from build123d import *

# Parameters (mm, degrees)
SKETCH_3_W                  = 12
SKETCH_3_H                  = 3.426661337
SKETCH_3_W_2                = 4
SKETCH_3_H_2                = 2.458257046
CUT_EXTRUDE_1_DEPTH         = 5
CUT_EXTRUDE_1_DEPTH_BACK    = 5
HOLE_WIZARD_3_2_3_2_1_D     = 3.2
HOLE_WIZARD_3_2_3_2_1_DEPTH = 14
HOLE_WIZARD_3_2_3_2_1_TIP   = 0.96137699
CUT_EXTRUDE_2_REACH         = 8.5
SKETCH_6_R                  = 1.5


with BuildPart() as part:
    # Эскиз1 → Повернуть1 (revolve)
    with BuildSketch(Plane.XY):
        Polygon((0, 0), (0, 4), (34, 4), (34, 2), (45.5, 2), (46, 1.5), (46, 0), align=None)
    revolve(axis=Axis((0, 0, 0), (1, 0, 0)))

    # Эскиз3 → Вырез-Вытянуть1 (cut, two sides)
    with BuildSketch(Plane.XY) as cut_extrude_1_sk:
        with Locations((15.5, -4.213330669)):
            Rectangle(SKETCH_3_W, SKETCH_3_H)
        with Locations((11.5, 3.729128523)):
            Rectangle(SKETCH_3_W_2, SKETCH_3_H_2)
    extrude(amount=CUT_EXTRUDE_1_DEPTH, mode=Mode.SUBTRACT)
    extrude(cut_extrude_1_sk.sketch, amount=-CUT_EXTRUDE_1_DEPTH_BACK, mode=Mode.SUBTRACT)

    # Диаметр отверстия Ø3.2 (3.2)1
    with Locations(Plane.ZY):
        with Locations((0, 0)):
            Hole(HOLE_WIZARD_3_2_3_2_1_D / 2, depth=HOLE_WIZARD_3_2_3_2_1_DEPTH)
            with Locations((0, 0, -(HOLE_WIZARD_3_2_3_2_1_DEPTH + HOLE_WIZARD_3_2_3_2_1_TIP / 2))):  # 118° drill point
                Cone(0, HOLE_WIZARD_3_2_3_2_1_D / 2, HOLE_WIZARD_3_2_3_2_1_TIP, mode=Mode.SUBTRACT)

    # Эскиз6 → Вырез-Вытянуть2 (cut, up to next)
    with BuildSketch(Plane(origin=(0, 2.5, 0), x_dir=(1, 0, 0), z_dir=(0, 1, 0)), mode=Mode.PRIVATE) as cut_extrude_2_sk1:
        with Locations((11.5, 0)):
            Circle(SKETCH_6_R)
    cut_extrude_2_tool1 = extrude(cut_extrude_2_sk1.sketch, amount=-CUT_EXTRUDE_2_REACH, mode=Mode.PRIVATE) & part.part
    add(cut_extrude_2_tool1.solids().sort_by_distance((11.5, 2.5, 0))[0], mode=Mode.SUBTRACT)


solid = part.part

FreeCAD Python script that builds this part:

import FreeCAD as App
import Part
import Sketcher

V = App.Vector
Q = App.Units.Quantity


def add_polygon(sketch, points):
    """Adds a closed chain of lines whose ends are joined by coincident constraints."""
    first, n = sketch.GeometryCount, len(points)
    for a, b in zip(points, points[1:] + points[:1]):
        sketch.addGeometry(Part.LineSegment(App.Vector(*a, 0), App.Vector(*b, 0)), False)
    for i in range(n):
        sketch.addConstraint(Sketcher.Constraint("Coincident", first + i, 2, first + (i + 1) % n, 1))

doc = App.newDocument("Part")
params = doc.addObject("Spreadsheet::Sheet", "Params")
for row, (alias, value) in enumerate([
    ("sketch1_width", "46 mm"),
    ("sketch1_width2", "34 mm"),
    ("sketch1_height", "4 mm"),
    ("sketch1_height2", "2 mm"),
    ("sketch1_width3", "11.5 mm"),
    ("revolution_angle", "360 deg"),
    ("sketch2_width", "12 mm"),
    ("sketch2_width2", "4 mm"),
    ("sketch3_diameter", "3.2 mm"),
    ("hole_diameter", "3.2 mm"),
    ("hole_depth", "14 mm"),
    ("sketch4_diameter", "3 mm"),
], start=1):
    params.set(f"A{row}", alias)
    params.set(f"B{row}", "=" + value)
    params.setAlias(f"B{row}", alias)

body = doc.addObject("PartDesign::Body", "Body")

# Sketch on XY plane
sketch1 = doc.addObject("Sketcher::SketchObject", "Sketch")
body.addObject(sketch1)
sketch1.AttachmentSupport = (doc.XY_Plane, [""])
sketch1.MapMode = "FlatFace"
add_polygon(sketch1, [(0, 4), (0, 0), (46, 0), (46, 1.5), (45.5, 2), (34, 2), (34, 4)])  # lines 0-6
sketch1.addConstraint(Sketcher.Constraint("Vertical", 0))
sketch1.addConstraint(Sketcher.Constraint("Horizontal", 1))
sketch1.addConstraint(Sketcher.Constraint("Vertical", 2))
sketch1.addConstraint(Sketcher.Constraint("Horizontal", 4))
sketch1.addConstraint(Sketcher.Constraint("Vertical", 5))
sketch1.addConstraint(Sketcher.Constraint("Horizontal", 6))
sketch1.addConstraint(Sketcher.Constraint("Coincident", 0, 2, -1, 1))
sketch1.addConstraint(Sketcher.Constraint("DistanceX", 1, 1, 1, 2, 46.0))
sketch1.addConstraint(Sketcher.Constraint("DistanceX", 6, 2, 6, 1, 34.0))
sketch1.addConstraint(Sketcher.Constraint("DistanceY", 0, 2, 0, 1, 4.0))
sketch1.addConstraint(Sketcher.Constraint("DistanceY", 5, 1, 5, 2, 2.0))
sketch1.addConstraint(Sketcher.Constraint("Angle", 3, Q("135 deg")))
sketch1.addConstraint(Sketcher.Constraint("DistanceX", 4, 2, 4, 1, 11.5))
sketch1.setExpression("Constraints[14]", "Params.sketch1_width")
sketch1.setExpression("Constraints[15]", "Params.sketch1_width2")
sketch1.setExpression("Constraints[16]", "Params.sketch1_height")
sketch1.setExpression("Constraints[17]", "Params.sketch1_height2")
sketch1.setExpression("Constraints[19]", "Params.sketch1_width3")
revolution = doc.addObject("PartDesign::Revolution", "Revolution")
body.addObject(revolution)
revolution.Profile = sketch1
revolution.ReferenceAxis = (sketch1, ["H_Axis"])
revolution.setExpression("Angle", "Params.revolution_angle")

# Sketch on XY plane
sketch2 = doc.addObject("Sketcher::SketchObject", "Sketch001")
body.addObject(sketch2)
sketch2.AttachmentSupport = (doc.XY_Plane, [""])
sketch2.MapMode = "FlatFace"
add_polygon(sketch2, [(9.5, -2.5), (9.5, -5.926661), (21.5, -5.926661), (21.5, -2.5)])  # lines 0-3
add_polygon(sketch2, [(9.5, 4.958257), (9.5, 2.5), (13.5, 2.5), (13.5, 4.958257)])  # lines 4-7
sketch2.addConstraint(Sketcher.Constraint("Vertical", 0))
sketch2.addConstraint(Sketcher.Constraint("Horizontal", 1))
sketch2.addConstraint(Sketcher.Constraint("Vertical", 2))
sketch2.addConstraint(Sketcher.Constraint("Horizontal", 3))
sketch2.addConstraint(Sketcher.Constraint("Vertical", 4))
sketch2.addConstraint(Sketcher.Constraint("Horizontal", 5))
sketch2.addConstraint(Sketcher.Constraint("Vertical", 6))
sketch2.addConstraint(Sketcher.Constraint("Horizontal", 7))
sketch2.addConstraint(Sketcher.Constraint("Symmetric", 3, 2, 4, 2, -1))
sketch2.addConstraint(Sketcher.Constraint("DistanceX", 1, 1, 1, 2, 12.0))
sketch2.addConstraint(Sketcher.Constraint("DistanceX", 5, 1, 5, 2, 4.0))
sketch2.addConstraint(Sketcher.Constraint("DistanceY", 3, 2, 4, 2, 5.0))
sketch2.addConstraint(Sketcher.Constraint("DistanceX", -1, 1, 0, 2, 9.5))
sketch2.addConstraint(Sketcher.Constraint("DistanceY", 0, 2, 0, 1, 3.426661))
sketch2.addConstraint(Sketcher.Constraint("DistanceY", 4, 2, 4, 1, 2.458257))
sketch2.setExpression("Constraints[17]", "Params.sketch2_width")
sketch2.setExpression("Constraints[18]", "Params.sketch2_width2")
pocket1 = doc.addObject("PartDesign::Pocket", "Pocket")
body.addObject(pocket1)
pocket1.Profile = sketch2
pocket1.Type = "ThroughAll"
pocket1.Midplane = True

# Sketch on YZ plane
sketch3 = doc.addObject("Sketcher::SketchObject", "Sketch002")
body.addObject(sketch3)
sketch3.AttachmentSupport = (doc.YZ_Plane, [""])
sketch3.MapMode = "FlatFace"
sketch3.addGeometry(Part.Circle(V(0, 0, 0), V(0, 0, 1), 1.6), False)
sketch3.addConstraint(Sketcher.Constraint("Coincident", 0, 3, -1, 1))
sketch3.addConstraint(Sketcher.Constraint("Diameter", 0, 3.2))
sketch3.setExpression("Constraints[1]", "Params.sketch3_diameter")
doc.recompute()
hole = doc.addObject("PartDesign::Hole", "Hole")
body.addObject(hole)
hole.Profile = sketch3
hole.ThreadType = "None"
hole.setExpression("Diameter", "Params.hole_diameter")
hole.DepthType = "Dimension"
hole.setExpression("Depth", "Params.hole_depth")
hole.DrillPoint = "Angled"
hole.DrillPointAngle = 118
hole.Reversed = True

# Sketch on XZ plane
sketch4 = doc.addObject("Sketcher::SketchObject", "Sketch003")
body.addObject(sketch4)
sketch4.AttachmentSupport = (doc.XZ_Plane, [""])
sketch4.MapMode = "FlatFace"
sketch4.AttachmentOffset = App.Placement(V(0, 0, -2.5), App.Rotation())
sketch4.addGeometry(Part.Circle(V(11.5, 0, 0), V(0, 0, 1), 1.5), False)
sketch4.addConstraint(Sketcher.Constraint("PointOnObject", 0, 3, -1))
sketch4.addConstraint(Sketcher.Constraint("Diameter", 0, 3.0))
sketch4.addConstraint(Sketcher.Constraint("DistanceX", -1, 1, 0, 3, 11.5))
sketch4.setExpression("Constraints[1]", "Params.sketch4_diameter")
pocket2 = doc.addObject("PartDesign::Pocket", "Pocket001")
body.addObject(pocket2)
pocket2.Profile = sketch4
pocket2.Type = "UpToFirst"
pocket2.Reversed = True

doc.recompute()
